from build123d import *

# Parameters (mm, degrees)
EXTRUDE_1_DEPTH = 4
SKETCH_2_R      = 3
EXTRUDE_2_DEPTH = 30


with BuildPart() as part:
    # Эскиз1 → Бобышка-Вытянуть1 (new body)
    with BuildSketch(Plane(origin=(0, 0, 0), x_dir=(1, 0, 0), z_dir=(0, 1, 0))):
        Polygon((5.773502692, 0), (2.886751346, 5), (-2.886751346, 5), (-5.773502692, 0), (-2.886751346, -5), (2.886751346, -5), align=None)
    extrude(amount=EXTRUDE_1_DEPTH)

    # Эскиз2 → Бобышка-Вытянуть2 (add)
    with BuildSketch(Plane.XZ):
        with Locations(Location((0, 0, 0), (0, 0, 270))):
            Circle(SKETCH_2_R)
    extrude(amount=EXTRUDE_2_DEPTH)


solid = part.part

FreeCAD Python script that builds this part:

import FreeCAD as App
import Part
import Sketcher
Q = App.Units.Quantity

doc = App.newDocument("Part")
params = doc.addObject("Spreadsheet::Sheet", "Params")
for row, (alias, value) in enumerate([
    ("pad1_length", "4 mm"),
    ("sketch2_diameter", "6 mm"),
    ("pad2_length", "30 mm"),
], start=1):
    params.set(f"A{row}", alias)
    params.set(f"B{row}", "=" + value)
    params.setAlias(f"B{row}", alias)

body = doc.addObject("PartDesign::Body", "Body")

sketch1 = body.newObject("Sketcher::SketchObject", "Sketch")
sketch1.AttachmentSupport = (doc.getObject("XZ_Plane"), [""])
sketch1.MapMode = "FlatFace"
sketch1.addGeometry([
    Part.LineSegment(App.Vector(6, 0, 0), App.Vector(3, -5, 0)),
    Part.LineSegment(App.Vector(3, -5, 0), App.Vector(-3, -5, 0)),
    Part.LineSegment(App.Vector(-3, -5, 0), App.Vector(-6, 0, 0)),
    Part.LineSegment(App.Vector(-6, 0, 0), App.Vector(-3, 5, 0)),
    Part.LineSegment(App.Vector(-3, 5, 0), App.Vector(3, 5, 0)),
    Part.LineSegment(App.Vector(3, 5, 0), App.Vector(6, 0, 0)),
], False)
sketch1.addConstraint([
    Sketcher.Constraint("Coincident", 0, 2, 1, 1),
    Sketcher.Constraint("Coincident", 1, 2, 2, 1),
    Sketcher.Constraint("Coincident", 2, 2, 3, 1),
    Sketcher.Constraint("Coincident", 3, 2, 4, 1),
    Sketcher.Constraint("Coincident", 4, 2, 5, 1),
    Sketcher.Constraint("Coincident", 5, 2, 0, 1),
    Sketcher.Constraint("Horizontal", 1),
    Sketcher.Constraint("Horizontal", 4),
    Sketcher.Constraint("Symmetric", 0, 2, 3, 2, -1, 1),
    Sketcher.Constraint("Symmetric", 2, 2, 5, 2, -1, 1),
    Sketcher.Constraint("PointOnObject", 2, 2, -1),
    Sketcher.Constraint("Parallel", 2, 5),
    Sketcher.Constraint("Vertical", 1, 2, 3, 2),
    Sketcher.Constraint("Angle", 0, Q("-120 deg")),
    Sketcher.Constraint("DistanceY", 0, 2, -1, 1, 5.0),
    Sketcher.Constraint("DistanceX", 1, 2, 1, 1, 5.773503),
])
pad1 = body.newObject("PartDesign::Pad", "Pad")
pad1.Profile = sketch1
pad1.setExpression("Length", "Params.pad1_length")
pad1.Reversed = True

sketch2 = body.newObject("Sketcher::SketchObject", "Sketch001")
sketch2.AttachmentSupport = (doc.getObject("XZ_Plane"), [""])
sketch2.MapMode = "FlatFace"
sketch2.addGeometry(Part.Circle(App.Vector(0, 0, 0), App.Vector(0, 0, 1), 3), False)
sketch2.addConstraint([
    Sketcher.Constraint("Coincident", 0, 3, -1, 1),
    Sketcher.Constraint("Diameter", 0, 6.0),
])
sketch2.setExpression("Constraints[1]", "Params.sketch2_diameter")
pad2 = body.newObject("PartDesign::Pad", "Pad001")
pad2.Profile = sketch2
pad2.setExpression("Length", "Params.pad2_length")

doc.recompute()
